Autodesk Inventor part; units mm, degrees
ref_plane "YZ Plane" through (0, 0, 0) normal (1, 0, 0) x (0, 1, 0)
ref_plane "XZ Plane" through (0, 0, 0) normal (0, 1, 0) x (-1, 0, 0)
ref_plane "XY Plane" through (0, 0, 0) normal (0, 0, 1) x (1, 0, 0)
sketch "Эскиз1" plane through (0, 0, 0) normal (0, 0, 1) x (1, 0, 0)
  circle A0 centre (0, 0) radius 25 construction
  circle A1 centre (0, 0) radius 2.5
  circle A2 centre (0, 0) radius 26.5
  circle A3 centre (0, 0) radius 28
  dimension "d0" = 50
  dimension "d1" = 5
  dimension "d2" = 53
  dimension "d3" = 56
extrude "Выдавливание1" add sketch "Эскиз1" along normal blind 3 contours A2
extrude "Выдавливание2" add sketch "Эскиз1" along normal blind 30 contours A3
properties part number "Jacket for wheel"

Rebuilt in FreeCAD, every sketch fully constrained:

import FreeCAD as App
import Part
import Sketcher

V = App.Vector
Q = App.Units.Quantity

doc = App.newDocument("Part")
body = doc.addObject("PartDesign::Body", "Body")

sketch1 = body.newObject("Sketcher::SketchObject", "Sketch")
sketch1.AttachmentSupport = (doc.getObject("XY_Plane"), [""])
sketch1.MapMode = "FlatFace"
sketch1.addGeometry(Part.Circle(V(0, 0, 0), V(0, 0, 1), 26.5), False)
sketch1.addGeometry(Part.Circle(V(0, 0, 0), V(0, 0, 1), 2.5), False)
sketch1.addConstraint(Sketcher.Constraint("Coincident", 0, 3, -1, 1))
sketch1.addConstraint(Sketcher.Constraint("Coincident", 1, 3, -1, 1))
sketch1.addConstraint(Sketcher.Constraint("Diameter", 0, Q("53 mm")))
sketch1.addConstraint(Sketcher.Constraint("Diameter", 1, Q("5 mm")))
pad1 = body.newObject("PartDesign::Pad", "Pad")
pad1.Profile = sketch1
pad1.Length = 3

sketch2 = body.newObject("Sketcher::SketchObject", "Sketch001")
sketch2.AttachmentSupport = (doc.getObject("XY_Plane"), [""])
sketch2.MapMode = "FlatFace"
sketch2.addGeometry(Part.Circle(V(0, 0, 0), V(0, 0, 1), 28), False)
sketch2.addGeometry(Part.Circle(V(0, 0, 0), V(0, 0, 1), 26.5), False)
sketch2.addConstraint(Sketcher.Constraint("Coincident", 0, 3, -1, 1))
sketch2.addConstraint(Sketcher.Constraint("Coincident", 1, 3, -1, 1))
sketch2.addConstraint(Sketcher.Constraint("Diameter", 0, Q("56 mm")))
sketch2.addConstraint(Sketcher.Constraint("Diameter", 1, Q("53 mm")))
pad2 = body.newObject("PartDesign::Pad", "Pad001")
pad2.Profile = sketch2
pad2.Length = 30

doc.recompute()
